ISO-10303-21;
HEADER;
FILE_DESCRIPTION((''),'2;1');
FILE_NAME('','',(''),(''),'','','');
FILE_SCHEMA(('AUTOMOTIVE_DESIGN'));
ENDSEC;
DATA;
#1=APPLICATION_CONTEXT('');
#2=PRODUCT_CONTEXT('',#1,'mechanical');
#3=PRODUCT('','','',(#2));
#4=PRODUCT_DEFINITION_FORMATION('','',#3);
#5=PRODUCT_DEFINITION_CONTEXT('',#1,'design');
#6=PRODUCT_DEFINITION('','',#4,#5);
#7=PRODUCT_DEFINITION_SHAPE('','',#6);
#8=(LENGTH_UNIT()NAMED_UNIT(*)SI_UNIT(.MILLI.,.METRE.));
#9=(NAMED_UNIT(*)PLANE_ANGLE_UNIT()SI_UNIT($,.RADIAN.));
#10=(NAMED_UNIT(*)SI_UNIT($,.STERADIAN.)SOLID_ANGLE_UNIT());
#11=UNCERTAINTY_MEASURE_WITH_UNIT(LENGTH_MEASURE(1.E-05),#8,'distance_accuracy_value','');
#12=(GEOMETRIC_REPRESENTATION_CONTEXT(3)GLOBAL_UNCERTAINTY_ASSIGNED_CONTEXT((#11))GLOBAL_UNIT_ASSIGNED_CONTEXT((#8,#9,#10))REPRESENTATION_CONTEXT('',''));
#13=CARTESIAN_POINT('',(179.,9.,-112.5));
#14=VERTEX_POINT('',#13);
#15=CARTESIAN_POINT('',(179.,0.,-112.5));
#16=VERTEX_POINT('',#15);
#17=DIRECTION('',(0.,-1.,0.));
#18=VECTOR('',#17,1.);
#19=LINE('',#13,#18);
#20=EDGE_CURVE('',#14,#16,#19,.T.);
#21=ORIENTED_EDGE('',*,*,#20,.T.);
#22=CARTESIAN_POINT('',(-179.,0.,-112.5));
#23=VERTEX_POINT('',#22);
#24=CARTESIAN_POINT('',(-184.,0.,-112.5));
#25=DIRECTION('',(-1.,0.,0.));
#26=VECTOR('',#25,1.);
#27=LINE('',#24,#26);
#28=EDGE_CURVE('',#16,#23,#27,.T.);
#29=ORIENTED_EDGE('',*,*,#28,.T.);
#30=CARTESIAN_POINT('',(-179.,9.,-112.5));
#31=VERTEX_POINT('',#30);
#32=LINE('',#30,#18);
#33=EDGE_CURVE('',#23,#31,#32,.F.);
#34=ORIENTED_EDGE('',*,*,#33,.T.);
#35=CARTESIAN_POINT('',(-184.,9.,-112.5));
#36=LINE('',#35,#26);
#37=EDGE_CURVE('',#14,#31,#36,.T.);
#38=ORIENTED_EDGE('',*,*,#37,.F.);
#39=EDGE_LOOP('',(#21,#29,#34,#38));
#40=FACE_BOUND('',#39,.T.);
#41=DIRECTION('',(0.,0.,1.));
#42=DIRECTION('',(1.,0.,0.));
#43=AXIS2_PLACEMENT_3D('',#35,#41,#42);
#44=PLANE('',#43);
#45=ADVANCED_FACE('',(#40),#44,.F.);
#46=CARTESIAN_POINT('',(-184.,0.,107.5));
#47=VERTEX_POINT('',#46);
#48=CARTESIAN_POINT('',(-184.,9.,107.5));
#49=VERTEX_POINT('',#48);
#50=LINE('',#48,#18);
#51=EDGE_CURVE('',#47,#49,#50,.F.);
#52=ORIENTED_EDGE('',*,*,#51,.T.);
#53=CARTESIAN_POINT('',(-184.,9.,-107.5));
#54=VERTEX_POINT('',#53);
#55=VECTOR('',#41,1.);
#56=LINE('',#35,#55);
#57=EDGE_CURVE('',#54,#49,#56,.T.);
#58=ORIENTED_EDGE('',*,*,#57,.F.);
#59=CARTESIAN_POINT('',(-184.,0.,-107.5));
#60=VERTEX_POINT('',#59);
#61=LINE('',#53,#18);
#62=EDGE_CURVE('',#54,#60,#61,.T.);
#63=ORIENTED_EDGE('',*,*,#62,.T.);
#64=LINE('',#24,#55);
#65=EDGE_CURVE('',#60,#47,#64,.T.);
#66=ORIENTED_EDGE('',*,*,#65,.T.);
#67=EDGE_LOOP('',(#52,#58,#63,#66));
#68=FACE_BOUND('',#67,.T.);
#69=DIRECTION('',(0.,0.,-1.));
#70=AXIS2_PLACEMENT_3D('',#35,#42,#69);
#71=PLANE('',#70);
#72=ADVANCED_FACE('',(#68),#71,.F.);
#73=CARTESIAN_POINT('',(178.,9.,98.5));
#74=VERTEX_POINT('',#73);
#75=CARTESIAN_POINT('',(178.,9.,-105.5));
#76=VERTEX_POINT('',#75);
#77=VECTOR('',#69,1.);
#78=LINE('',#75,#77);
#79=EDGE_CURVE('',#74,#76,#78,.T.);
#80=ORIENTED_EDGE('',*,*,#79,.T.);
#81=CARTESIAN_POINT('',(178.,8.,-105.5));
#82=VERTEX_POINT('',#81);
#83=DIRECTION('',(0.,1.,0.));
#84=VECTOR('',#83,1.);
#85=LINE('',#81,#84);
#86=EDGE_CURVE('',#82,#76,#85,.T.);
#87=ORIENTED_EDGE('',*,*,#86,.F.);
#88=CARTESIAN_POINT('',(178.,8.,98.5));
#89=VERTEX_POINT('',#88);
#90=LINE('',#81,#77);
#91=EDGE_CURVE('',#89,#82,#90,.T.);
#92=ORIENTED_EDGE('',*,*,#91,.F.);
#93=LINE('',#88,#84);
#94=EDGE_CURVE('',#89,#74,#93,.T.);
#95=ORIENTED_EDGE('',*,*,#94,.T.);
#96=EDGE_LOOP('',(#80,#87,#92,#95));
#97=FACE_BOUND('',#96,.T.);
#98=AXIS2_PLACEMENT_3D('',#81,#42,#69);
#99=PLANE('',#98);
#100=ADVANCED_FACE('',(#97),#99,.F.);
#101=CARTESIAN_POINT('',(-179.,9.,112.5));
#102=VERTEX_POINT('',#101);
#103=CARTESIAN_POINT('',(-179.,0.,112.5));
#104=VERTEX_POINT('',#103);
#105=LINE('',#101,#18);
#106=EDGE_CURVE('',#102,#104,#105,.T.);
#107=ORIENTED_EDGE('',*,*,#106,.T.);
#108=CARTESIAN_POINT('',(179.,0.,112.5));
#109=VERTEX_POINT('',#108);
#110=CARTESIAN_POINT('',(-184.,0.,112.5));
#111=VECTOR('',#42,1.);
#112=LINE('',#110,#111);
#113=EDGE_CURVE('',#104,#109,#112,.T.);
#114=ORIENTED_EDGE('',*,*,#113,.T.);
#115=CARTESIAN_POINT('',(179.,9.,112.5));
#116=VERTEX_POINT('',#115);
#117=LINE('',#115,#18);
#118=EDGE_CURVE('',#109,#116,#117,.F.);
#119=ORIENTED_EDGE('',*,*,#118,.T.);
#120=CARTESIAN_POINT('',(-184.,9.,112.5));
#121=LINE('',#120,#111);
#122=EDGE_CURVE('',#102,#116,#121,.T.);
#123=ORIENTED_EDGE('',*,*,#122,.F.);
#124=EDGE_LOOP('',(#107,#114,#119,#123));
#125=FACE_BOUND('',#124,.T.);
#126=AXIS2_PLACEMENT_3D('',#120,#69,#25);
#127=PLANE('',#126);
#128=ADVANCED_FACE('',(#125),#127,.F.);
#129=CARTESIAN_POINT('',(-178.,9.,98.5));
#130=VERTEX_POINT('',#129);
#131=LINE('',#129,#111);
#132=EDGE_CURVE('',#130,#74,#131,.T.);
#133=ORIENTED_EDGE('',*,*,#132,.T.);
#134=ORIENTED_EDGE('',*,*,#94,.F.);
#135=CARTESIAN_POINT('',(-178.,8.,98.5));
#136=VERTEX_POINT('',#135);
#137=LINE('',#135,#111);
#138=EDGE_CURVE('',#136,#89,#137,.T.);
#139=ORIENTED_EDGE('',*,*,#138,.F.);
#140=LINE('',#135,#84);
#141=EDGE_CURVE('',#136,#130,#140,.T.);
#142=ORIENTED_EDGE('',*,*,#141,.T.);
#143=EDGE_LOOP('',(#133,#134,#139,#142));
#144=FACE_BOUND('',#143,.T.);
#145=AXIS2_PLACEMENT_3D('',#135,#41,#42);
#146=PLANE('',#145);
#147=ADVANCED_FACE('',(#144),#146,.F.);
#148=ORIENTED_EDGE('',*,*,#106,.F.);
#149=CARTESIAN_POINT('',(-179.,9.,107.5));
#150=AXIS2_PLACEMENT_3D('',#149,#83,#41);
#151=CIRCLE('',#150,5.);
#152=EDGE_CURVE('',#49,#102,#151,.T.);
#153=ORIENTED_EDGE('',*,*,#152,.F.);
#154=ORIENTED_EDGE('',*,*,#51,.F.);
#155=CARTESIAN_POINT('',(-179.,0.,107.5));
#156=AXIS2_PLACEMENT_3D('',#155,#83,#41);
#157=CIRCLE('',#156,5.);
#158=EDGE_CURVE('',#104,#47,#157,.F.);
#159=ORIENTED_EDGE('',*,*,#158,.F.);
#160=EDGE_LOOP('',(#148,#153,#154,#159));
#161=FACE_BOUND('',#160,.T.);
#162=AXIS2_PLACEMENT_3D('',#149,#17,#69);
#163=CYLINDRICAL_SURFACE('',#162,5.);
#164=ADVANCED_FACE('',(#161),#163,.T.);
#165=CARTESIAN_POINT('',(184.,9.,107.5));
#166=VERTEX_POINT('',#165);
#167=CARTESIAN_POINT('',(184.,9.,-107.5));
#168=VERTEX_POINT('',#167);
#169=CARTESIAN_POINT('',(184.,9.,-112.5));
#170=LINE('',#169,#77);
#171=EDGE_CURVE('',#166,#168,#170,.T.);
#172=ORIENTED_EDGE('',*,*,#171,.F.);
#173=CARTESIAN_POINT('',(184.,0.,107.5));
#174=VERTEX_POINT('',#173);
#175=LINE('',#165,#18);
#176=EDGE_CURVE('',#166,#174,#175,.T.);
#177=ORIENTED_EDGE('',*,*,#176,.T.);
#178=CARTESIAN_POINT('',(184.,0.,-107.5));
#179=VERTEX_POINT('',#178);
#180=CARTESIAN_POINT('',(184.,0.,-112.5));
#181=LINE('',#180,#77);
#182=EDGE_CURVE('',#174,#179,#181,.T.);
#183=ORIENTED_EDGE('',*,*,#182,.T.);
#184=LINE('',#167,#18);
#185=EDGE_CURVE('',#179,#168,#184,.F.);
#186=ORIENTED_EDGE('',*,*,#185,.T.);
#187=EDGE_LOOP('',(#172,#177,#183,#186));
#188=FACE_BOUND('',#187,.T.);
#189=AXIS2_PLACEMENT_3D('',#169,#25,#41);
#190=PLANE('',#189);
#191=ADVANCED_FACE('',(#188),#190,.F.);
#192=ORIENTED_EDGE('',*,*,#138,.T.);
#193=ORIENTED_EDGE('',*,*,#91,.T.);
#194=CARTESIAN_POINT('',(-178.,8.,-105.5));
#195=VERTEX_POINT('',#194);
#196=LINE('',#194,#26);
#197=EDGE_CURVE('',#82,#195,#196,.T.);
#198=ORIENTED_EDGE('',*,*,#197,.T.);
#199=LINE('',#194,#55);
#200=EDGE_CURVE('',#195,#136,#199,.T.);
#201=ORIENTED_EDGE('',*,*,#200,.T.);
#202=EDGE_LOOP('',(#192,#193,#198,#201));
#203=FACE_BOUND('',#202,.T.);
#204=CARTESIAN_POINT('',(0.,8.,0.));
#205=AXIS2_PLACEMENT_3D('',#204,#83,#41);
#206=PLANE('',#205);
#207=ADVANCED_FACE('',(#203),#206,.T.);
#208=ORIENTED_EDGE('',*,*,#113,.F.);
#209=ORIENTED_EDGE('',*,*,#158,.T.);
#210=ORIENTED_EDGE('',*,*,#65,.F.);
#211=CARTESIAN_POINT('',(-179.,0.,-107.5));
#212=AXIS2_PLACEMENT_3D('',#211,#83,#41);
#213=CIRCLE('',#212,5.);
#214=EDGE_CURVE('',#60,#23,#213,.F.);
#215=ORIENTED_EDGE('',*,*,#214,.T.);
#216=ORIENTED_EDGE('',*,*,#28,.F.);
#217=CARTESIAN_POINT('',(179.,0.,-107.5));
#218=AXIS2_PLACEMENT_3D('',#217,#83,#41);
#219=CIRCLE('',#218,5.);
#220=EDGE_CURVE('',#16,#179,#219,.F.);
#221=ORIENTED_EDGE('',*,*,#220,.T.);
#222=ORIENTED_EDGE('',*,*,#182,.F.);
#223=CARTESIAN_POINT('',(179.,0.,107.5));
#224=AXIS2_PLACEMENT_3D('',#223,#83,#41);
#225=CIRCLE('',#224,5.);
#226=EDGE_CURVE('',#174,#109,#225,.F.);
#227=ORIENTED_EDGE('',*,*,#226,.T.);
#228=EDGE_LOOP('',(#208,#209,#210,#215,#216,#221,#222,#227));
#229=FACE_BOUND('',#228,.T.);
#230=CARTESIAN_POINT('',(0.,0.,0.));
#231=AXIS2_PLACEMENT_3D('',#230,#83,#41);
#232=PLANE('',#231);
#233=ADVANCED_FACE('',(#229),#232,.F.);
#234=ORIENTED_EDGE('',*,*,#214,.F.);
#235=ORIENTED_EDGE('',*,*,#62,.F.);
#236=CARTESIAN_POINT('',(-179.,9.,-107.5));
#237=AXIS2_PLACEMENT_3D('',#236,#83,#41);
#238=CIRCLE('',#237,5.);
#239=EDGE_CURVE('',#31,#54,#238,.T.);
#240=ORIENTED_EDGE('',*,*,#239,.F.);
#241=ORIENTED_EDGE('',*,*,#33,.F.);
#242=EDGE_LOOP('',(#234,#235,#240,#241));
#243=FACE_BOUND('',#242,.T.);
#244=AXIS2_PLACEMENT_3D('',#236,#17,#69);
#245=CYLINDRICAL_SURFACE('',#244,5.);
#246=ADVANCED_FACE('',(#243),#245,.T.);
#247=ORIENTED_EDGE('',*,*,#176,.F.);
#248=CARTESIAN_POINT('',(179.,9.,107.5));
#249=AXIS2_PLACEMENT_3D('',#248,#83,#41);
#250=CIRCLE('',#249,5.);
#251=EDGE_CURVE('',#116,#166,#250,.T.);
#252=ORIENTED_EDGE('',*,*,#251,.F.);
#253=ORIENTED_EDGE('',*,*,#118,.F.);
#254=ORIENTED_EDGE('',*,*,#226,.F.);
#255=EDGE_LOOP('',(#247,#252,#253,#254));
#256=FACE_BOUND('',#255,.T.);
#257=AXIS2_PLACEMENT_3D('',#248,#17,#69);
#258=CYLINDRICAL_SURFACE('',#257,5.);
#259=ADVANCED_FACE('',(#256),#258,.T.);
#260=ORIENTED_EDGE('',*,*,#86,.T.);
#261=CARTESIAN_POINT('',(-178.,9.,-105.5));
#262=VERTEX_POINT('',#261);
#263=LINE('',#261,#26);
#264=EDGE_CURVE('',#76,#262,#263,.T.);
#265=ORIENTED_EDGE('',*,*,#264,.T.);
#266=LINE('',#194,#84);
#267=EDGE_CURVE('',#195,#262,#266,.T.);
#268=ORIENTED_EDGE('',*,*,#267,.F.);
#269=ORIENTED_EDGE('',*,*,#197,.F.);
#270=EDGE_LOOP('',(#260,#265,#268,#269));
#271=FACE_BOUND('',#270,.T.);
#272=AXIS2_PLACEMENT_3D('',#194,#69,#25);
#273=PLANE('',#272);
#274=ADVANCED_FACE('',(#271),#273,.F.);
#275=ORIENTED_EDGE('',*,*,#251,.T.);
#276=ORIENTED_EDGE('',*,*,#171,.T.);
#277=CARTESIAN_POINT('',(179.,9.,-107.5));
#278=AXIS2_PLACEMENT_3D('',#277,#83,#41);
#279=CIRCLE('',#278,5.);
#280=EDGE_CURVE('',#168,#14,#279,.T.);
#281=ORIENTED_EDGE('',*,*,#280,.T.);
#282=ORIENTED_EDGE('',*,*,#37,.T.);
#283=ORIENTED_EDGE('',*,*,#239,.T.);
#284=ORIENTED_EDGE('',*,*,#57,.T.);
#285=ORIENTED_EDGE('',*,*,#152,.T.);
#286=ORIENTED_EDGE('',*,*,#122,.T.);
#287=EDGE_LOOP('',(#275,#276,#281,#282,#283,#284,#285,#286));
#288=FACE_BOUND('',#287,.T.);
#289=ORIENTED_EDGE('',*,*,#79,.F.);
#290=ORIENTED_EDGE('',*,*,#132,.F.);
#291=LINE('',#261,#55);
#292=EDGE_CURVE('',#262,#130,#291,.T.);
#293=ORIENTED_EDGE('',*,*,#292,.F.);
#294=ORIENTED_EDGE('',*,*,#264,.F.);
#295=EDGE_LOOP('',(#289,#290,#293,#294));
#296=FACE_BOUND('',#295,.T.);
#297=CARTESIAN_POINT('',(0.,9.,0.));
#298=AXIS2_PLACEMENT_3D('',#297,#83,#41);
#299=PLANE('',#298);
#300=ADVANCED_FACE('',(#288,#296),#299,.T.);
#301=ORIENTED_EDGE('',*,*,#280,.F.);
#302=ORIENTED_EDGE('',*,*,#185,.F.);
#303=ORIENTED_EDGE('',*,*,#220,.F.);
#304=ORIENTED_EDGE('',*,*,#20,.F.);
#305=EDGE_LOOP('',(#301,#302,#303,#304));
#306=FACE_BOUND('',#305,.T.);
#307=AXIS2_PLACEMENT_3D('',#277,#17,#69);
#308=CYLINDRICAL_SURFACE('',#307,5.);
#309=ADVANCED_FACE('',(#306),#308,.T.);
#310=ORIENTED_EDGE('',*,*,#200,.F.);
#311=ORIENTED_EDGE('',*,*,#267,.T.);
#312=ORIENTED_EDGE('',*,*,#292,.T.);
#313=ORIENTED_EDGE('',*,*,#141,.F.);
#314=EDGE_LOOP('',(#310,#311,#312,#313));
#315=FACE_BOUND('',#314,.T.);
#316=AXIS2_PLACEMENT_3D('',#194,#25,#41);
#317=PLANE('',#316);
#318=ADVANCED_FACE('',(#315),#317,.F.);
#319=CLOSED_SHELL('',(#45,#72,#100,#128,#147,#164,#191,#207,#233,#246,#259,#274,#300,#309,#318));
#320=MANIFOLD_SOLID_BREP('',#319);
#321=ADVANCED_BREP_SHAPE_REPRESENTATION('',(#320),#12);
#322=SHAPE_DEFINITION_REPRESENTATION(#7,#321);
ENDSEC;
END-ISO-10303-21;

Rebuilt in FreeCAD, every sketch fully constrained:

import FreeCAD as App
import Part
import Sketcher

V = App.Vector
Q = App.Units.Quantity


def edges_at(feature, points):
    """Names of the edges that pass closest to the given points."""
    edges = feature.Shape.Edges
    near = lambda p: min(range(len(edges)), key=lambda i: edges[i].distToShape(Part.Vertex(*p))[0])
    return sorted({f"Edge{near(p) + 1}" for p in points})

doc = App.newDocument("Part")
body = doc.addObject("PartDesign::Body", "Body")

sketch1 = doc.addObject("Sketcher::SketchObject", "Sketch")
body.addObject(sketch1)
sketch1.AttachmentSupport = (doc.XZ_Plane, [""])
sketch1.MapMode = "FlatFace"
sketch1.addGeometry([
    Part.LineSegment(V(-184, -112.5, 0), V(-184, 112.5, 0)),
    Part.LineSegment(V(-184, 112.5, 0), V(184, 112.5, 0)),
    Part.LineSegment(V(184, 112.5, 0), V(184, -112.5, 0)),
    Part.LineSegment(V(184, -112.5, 0), V(-184, -112.5, 0)),
], False)
sketch1.addConstraint([
    Sketcher.Constraint("Coincident", 0, 2, 1, 1),
    Sketcher.Constraint("Coincident", 1, 2, 2, 1),
    Sketcher.Constraint("Coincident", 2, 2, 3, 1),
    Sketcher.Constraint("Coincident", 3, 2, 0, 1),
    Sketcher.Constraint("Vertical", 0),
    Sketcher.Constraint("Horizontal", 1),
    Sketcher.Constraint("Vertical", 2),
    Sketcher.Constraint("Horizontal", 3),
    Sketcher.Constraint("Symmetric", 0, 2, 2, 2, -1, 1),
    Sketcher.Constraint("DistanceX", 1, 1, 1, 2, Q("368 mm")),
    Sketcher.Constraint("DistanceY", 0, 1, 0, 2, Q("225 mm")),
])
pad1 = doc.addObject("PartDesign::Pad", "Pad")
body.addObject(pad1)
pad1.Profile = sketch1
pad1.Length = 9
pad1.Reversed = True
doc.recompute()

fillet = doc.addObject("PartDesign::Fillet", "Fillet")
body.addObject(fillet)
fillet.Base = (pad1, edges_at(pad1, [
    (-184, 4.5, -112.5),
    (184, 4.5, -112.5),
    (184, 4.5, 112.5),
    (-184, 4.5, 112.5),
]))
fillet.Radius = 5

sketch2 = doc.addObject("Sketcher::SketchObject", "Sketch001")
body.addObject(sketch2)
sketch2.AttachmentSupport = (doc.XZ_Plane, [""])
sketch2.MapMode = "FlatFace"
sketch2.AttachmentOffset = App.Placement(V(0, 0, -9), App.Rotation())
sketch2.addGeometry([
    Part.LineSegment(V(-178, -105.5, 0), V(-178, 98.5, 0)),
    Part.LineSegment(V(-178, 98.5, 0), V(178, 98.5, 0)),
    Part.LineSegment(V(178, 98.5, 0), V(178, -105.5, 0)),
    Part.LineSegment(V(178, -105.5, 0), V(-178, -105.5, 0)),
], False)
sketch2.addConstraint([
    Sketcher.Constraint("Coincident", 0, 2, 1, 1),
    Sketcher.Constraint("Coincident", 1, 2, 2, 1),
    Sketcher.Constraint("Coincident", 2, 2, 3, 1),
    Sketcher.Constraint("Coincident", 3, 2, 0, 1),
    Sketcher.Constraint("Vertical", 0),
    Sketcher.Constraint("Horizontal", 1),
    Sketcher.Constraint("Vertical", 2),
    Sketcher.Constraint("Horizontal", 3),
    Sketcher.Constraint("DistanceX", 1, 1, 1, 2, Q("356 mm")),
    Sketcher.Constraint("DistanceY", 0, 1, 0, 2, Q("204 mm")),
    Sketcher.Constraint("DistanceX", 0, 2, -1, 1, Q("178 mm")),
    Sketcher.Constraint("DistanceY", -1, 1, 0, 2, Q("98.5 mm")),
])
pocket1 = doc.addObject("PartDesign::Pocket", "Pocket")
body.addObject(pocket1)
pocket1.Profile = sketch2
pocket1.Length = 1
pocket1.Reversed = True

doc.recompute()
